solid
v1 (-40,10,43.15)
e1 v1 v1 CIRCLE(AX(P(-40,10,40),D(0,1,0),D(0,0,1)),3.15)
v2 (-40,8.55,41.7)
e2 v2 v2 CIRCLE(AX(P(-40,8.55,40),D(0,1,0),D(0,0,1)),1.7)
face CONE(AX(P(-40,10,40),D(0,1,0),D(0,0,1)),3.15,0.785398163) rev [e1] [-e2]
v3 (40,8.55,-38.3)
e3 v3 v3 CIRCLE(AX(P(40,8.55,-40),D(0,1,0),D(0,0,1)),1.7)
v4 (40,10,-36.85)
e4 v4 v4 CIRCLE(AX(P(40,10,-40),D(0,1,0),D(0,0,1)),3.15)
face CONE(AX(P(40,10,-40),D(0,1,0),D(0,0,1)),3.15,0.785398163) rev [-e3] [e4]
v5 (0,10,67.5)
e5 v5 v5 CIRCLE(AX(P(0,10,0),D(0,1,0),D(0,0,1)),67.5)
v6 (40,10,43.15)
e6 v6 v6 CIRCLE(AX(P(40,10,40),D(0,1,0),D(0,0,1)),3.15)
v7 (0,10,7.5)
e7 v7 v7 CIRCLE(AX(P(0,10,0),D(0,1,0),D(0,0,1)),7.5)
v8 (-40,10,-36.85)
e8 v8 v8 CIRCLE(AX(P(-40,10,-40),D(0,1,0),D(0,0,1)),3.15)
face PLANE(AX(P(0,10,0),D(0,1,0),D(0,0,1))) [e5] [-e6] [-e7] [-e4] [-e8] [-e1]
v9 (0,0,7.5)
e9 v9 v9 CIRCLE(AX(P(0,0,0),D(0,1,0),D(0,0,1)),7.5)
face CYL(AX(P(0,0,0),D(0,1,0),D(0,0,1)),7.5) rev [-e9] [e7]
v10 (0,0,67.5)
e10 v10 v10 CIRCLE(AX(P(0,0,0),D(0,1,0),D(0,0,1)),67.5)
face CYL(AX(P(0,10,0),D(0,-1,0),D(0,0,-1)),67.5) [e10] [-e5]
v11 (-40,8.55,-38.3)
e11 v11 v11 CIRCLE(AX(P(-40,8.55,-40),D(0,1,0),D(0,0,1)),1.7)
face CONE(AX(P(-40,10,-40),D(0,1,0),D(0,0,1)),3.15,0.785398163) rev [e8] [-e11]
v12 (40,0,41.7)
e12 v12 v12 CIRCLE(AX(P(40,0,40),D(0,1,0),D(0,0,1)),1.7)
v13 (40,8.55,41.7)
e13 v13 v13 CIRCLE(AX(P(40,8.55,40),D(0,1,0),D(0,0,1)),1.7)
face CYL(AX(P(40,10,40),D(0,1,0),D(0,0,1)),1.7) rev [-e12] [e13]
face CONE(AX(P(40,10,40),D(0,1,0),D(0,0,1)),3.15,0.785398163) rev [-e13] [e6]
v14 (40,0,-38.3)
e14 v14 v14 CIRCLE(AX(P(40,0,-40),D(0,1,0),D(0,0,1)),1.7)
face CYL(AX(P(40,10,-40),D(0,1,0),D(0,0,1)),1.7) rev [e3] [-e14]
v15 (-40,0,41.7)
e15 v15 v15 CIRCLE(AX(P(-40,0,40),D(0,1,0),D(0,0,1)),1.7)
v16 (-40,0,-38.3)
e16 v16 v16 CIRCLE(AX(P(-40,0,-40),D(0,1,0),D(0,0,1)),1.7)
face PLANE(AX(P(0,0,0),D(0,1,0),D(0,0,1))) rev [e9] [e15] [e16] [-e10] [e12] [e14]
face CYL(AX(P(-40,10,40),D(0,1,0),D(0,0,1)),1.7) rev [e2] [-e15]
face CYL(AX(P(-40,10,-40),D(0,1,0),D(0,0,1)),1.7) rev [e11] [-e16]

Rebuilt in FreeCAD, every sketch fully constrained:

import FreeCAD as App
import Part
import Sketcher
Q = App.Units.Quantity

doc = App.newDocument("Part")
body = doc.addObject("PartDesign::Body", "Body")

# Sketch on XZ plane
sketch1 = doc.addObject("Sketcher::SketchObject", "Sketch")
body.addObject(sketch1)
sketch1.AttachmentSupport = (doc.XZ_Plane, [""])
sketch1.MapMode = "FlatFace"
sketch1.addGeometry(Part.Circle(App.Vector(0, 0, 0), App.Vector(0, 0, 1), 67.5), False)
sketch1.addConstraint(Sketcher.Constraint("Coincident", 0, 3, -1, 1))
sketch1.addConstraint(Sketcher.Constraint("Diameter", 0, Q("135 mm")))
pad1 = doc.addObject("PartDesign::Pad", "Pad")
body.addObject(pad1)
pad1.Profile = sketch1
pad1.Length = 10
pad1.Reversed = True

# Sketch on XZ plane
sketch2 = doc.addObject("Sketcher::SketchObject", "Sketch001")
body.addObject(sketch2)
sketch2.AttachmentSupport = (doc.XZ_Plane, [""])
sketch2.MapMode = "FlatFace"
sketch2.AttachmentOffset = App.Placement(App.Vector(0, 0, -10), App.Rotation())
sketch2.addGeometry(Part.Circle(App.Vector(-40, -40, 0), App.Vector(0, 0, 1), 1.7), False)
sketch2.addGeometry(Part.Circle(App.Vector(40, -40, 0), App.Vector(0, 0, 1), 1.7), False)
sketch2.addGeometry(Part.Circle(App.Vector(40, 40, 0), App.Vector(0, 0, 1), 1.7), False)
sketch2.addGeometry(Part.Circle(App.Vector(-40, 40, 0), App.Vector(0, 0, 1), 1.7), False)
sketch2.addConstraint(Sketcher.Constraint("Equal", 0, 1))
sketch2.addConstraint(Sketcher.Constraint("Equal", 1, 2))
sketch2.addConstraint(Sketcher.Constraint("Equal", 2, 3))
sketch2.addConstraint(Sketcher.Constraint("Symmetric", 0, 3, 2, 3, -1, 1))
sketch2.addConstraint(Sketcher.Constraint("Symmetric", 1, 3, 3, 3, -1, 1))
sketch2.addConstraint(Sketcher.Constraint("Symmetric", 0, 3, 1, 3, -2))
sketch2.addConstraint(Sketcher.Constraint("Diameter", 0, Q("3.4 mm")))
sketch2.addConstraint(Sketcher.Constraint("DistanceX", 0, 3, -1, 1, Q("40 mm")))
sketch2.addConstraint(Sketcher.Constraint("DistanceY", 0, 3, -1, 1, Q("40 mm")))
doc.recompute()
hole = doc.addObject("PartDesign::Hole", "Hole")
body.addObject(hole)
hole.Profile = sketch2
hole.ThreadType = "None"
hole.Diameter = 3.4
hole.DepthType = "ThroughAll"
hole.HoleCutType = "Countersink"
hole.HoleCutDiameter = 6.3
hole.HoleCutCountersinkAngle = 90
hole.Reversed = True

# Sketch on XZ plane
sketch3 = doc.addObject("Sketcher::SketchObject", "Sketch002")
body.addObject(sketch3)
sketch3.AttachmentSupport = (doc.XZ_Plane, [""])
sketch3.MapMode = "FlatFace"
sketch3.AttachmentOffset = App.Placement(App.Vector(0, 0, -10), App.Rotation())
sketch3.addGeometry(Part.Circle(App.Vector(0, 0, 0), App.Vector(0, 0, 1), 7.5), False)
sketch3.addConstraint(Sketcher.Constraint("Coincident", 0, 3, -1, 1))
sketch3.addConstraint(Sketcher.Constraint("Diameter", 0, Q("15 mm")))
pocket1 = doc.addObject("PartDesign::Pocket", "Pocket")
body.addObject(pocket1)
pocket1.Profile = sketch3
pocket1.Type = "ThroughAll"
pocket1.Reversed = True

doc.recompute()
